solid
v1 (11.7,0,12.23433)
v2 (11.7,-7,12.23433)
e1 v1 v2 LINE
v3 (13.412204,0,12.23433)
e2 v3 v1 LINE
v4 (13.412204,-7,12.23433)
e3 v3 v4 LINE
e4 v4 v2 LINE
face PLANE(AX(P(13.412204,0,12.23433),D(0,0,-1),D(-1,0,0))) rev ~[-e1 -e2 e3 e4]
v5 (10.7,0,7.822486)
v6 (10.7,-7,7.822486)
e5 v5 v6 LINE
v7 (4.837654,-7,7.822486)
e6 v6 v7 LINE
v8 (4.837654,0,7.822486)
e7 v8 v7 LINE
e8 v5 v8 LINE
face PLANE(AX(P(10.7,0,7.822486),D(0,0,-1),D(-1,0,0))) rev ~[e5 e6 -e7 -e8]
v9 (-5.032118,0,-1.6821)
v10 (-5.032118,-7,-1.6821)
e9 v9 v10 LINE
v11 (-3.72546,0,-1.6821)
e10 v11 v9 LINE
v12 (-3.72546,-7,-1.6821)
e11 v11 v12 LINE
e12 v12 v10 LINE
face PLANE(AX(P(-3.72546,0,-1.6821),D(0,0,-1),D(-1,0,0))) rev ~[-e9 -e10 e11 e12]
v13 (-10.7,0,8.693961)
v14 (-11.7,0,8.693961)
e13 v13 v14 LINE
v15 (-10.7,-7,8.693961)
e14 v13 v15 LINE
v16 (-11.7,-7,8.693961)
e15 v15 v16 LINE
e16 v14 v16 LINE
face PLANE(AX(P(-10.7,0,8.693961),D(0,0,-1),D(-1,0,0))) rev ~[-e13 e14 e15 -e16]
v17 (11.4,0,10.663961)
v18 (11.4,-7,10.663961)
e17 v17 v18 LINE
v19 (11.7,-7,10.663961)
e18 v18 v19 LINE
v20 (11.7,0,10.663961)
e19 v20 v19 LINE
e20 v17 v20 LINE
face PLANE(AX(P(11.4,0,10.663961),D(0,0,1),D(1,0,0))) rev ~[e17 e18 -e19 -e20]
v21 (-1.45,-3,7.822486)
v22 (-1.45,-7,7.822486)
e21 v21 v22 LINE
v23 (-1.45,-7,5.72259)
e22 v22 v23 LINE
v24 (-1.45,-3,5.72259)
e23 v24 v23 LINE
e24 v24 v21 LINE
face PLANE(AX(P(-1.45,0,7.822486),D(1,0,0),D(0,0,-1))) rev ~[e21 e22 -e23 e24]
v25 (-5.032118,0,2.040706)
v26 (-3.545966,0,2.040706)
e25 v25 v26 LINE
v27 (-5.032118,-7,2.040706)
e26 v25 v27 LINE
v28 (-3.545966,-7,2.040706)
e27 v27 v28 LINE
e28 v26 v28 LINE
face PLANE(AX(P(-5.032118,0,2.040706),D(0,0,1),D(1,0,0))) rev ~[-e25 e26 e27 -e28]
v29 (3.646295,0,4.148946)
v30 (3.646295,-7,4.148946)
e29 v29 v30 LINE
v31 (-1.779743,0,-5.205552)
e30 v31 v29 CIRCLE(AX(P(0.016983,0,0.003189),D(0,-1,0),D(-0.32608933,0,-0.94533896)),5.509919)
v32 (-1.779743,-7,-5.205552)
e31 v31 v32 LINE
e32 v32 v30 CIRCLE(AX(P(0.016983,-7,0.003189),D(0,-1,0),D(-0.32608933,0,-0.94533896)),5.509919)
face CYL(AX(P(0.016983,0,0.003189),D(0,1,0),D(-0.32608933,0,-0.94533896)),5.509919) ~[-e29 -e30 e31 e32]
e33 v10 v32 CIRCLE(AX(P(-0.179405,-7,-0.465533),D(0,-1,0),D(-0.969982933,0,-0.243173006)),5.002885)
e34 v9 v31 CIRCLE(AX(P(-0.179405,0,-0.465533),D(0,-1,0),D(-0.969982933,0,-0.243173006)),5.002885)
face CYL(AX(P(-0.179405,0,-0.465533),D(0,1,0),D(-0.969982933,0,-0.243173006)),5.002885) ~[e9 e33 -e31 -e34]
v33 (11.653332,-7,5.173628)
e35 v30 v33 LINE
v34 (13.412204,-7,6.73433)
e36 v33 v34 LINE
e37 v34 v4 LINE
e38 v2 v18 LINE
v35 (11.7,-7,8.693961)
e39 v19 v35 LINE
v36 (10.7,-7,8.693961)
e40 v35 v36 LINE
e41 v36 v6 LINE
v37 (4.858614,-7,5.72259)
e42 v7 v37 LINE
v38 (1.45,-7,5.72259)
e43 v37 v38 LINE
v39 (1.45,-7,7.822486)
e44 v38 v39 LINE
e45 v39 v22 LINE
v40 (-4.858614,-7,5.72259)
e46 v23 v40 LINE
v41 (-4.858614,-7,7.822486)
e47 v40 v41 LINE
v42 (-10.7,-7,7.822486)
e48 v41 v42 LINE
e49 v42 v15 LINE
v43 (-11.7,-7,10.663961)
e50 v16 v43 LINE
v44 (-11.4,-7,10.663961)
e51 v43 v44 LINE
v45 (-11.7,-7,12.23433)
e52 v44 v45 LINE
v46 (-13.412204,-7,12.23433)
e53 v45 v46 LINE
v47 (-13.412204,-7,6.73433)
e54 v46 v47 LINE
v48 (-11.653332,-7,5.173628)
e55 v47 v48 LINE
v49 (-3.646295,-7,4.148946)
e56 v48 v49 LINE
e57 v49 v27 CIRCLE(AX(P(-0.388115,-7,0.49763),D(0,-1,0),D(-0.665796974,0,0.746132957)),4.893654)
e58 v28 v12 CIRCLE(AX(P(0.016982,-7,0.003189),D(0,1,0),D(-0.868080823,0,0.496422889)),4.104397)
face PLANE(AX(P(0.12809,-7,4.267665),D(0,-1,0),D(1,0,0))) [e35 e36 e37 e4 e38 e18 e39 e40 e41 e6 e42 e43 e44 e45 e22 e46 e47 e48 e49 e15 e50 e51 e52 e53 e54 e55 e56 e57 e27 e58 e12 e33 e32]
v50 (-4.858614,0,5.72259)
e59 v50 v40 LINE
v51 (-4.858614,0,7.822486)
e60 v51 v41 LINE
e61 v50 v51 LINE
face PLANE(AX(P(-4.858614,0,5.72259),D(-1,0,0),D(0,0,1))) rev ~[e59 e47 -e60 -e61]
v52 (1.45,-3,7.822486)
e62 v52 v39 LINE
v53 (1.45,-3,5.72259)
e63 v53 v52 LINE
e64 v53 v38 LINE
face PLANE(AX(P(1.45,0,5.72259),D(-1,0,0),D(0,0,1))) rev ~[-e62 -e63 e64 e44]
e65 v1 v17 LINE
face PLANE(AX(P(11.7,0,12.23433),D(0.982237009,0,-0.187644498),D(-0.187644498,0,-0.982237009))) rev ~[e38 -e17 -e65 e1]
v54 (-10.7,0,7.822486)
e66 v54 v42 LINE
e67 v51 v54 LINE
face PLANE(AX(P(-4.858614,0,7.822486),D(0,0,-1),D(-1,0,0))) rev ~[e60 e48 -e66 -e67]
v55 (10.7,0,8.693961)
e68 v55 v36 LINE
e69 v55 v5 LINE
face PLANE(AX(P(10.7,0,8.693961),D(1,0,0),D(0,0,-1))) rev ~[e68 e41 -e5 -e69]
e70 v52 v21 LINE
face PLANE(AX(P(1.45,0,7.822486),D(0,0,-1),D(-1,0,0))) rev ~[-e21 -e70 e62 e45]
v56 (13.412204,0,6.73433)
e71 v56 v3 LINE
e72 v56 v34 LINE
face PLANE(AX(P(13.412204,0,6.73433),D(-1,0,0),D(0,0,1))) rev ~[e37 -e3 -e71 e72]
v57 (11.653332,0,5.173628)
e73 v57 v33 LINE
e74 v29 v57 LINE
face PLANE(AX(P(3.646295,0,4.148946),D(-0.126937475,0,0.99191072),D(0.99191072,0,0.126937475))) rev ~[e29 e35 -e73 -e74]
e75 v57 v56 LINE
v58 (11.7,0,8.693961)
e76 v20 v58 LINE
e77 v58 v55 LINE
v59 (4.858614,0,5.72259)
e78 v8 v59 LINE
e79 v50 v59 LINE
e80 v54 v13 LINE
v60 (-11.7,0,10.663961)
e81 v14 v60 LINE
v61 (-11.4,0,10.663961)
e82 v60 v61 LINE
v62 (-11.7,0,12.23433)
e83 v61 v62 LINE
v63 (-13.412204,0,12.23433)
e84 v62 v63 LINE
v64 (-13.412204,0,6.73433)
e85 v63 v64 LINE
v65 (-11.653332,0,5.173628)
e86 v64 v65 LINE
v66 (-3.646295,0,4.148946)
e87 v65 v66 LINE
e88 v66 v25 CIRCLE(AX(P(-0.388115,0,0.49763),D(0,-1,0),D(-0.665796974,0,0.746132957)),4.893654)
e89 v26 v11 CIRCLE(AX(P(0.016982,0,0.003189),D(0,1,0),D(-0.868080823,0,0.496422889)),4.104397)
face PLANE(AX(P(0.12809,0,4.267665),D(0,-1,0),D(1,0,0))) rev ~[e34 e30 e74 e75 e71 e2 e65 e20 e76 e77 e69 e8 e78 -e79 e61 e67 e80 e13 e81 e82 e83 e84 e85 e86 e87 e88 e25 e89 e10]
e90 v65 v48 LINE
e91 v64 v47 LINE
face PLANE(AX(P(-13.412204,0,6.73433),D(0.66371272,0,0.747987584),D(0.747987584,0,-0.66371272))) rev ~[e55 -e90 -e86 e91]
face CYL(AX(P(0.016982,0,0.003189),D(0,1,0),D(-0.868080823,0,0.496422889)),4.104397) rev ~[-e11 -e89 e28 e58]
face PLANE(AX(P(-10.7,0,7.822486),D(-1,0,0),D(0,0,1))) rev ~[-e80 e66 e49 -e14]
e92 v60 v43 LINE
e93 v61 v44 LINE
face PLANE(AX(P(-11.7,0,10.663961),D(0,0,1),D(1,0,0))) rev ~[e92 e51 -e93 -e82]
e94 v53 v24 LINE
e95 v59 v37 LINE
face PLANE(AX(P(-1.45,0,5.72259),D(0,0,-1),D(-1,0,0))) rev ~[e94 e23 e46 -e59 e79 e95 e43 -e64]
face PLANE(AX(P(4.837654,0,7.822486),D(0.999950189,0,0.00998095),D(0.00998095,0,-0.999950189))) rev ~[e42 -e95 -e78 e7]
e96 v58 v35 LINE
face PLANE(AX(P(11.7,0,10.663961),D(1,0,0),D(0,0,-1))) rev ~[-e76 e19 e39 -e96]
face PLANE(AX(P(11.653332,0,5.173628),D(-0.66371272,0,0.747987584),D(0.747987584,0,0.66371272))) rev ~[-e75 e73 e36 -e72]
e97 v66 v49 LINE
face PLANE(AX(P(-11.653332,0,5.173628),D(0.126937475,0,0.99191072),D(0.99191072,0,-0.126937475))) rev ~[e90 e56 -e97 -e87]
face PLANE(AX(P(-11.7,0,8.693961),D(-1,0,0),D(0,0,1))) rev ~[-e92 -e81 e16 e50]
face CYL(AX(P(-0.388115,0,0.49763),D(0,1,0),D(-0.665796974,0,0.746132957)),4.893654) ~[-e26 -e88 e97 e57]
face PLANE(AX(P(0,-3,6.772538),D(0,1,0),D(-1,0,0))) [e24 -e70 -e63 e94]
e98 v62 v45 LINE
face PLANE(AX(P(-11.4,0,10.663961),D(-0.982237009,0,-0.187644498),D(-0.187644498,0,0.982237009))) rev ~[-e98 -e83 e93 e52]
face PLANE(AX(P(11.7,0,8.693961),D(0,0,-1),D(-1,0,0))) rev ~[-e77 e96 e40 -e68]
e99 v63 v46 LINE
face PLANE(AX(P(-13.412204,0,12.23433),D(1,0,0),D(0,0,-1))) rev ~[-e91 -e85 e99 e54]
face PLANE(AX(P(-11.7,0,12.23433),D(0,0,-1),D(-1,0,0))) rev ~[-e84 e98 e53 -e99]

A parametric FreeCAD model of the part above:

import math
import FreeCAD as App
import Part
import Sketcher
from FreeCAD import Vector
Q = App.Units.Quantity

doc = App.newDocument("Part")
body = doc.addObject("PartDesign::Body", "Body")

# Sketch on XZ plane
sketch1 = doc.addObject("Sketcher::SketchObject", "Sketch")
body.addObject(sketch1)
sketch1.AttachmentSupport = (doc.XZ_Plane, [""])
sketch1.MapMode = "FlatFace"
sketch1.addGeometry([
    Part.ArcOfCircle(Part.Circle(Vector(-0.18, -0.47, 0), Vector(0, 0, 1), 5), math.radians(-166), math.radians(-109)),  # 0
    Part.ArcOfCircle(Part.Circle(Vector(0.02, 0, 0), Vector(0, 0, 1), 5.51), math.radians(-109), math.radians(49)),  # 1
    Part.LineSegment(Vector(3.65, 4.15, 0), Vector(11.65, 5.17, 0)),  # 2
    Part.LineSegment(Vector(11.65, 5.17, 0), Vector(13.41, 6.73, 0)),  # 3
    Part.LineSegment(Vector(13.41, 6.73, 0), Vector(13.41, 12.23, 0)),  # 4
    Part.LineSegment(Vector(13.41, 12.23, 0), Vector(11.7, 12.23, 0)),  # 5
    Part.LineSegment(Vector(11.7, 12.23, 0), Vector(11.4, 10.66, 0)),  # 6
    Part.LineSegment(Vector(11.4, 10.66, 0), Vector(11.7, 10.66, 0)),  # 7
    Part.LineSegment(Vector(11.7, 10.66, 0), Vector(11.7, 8.69, 0)),  # 8
    Part.LineSegment(Vector(11.7, 8.69, 0), Vector(10.7, 8.69, 0)),  # 9
    Part.LineSegment(Vector(10.7, 8.69, 0), Vector(10.7, 7.82, 0)),  # 10
    Part.LineSegment(Vector(10.7, 7.82, 0), Vector(4.84, 7.82, 0)),  # 11
    Part.LineSegment(Vector(4.84, 7.82, 0), Vector(4.86, 5.72, 0)),  # 12
    Part.LineSegment(Vector(4.86, 5.72, 0), Vector(1.45, 5.72, 0)),  # 13
    Part.LineSegment(Vector(1.45, 5.72, 0), Vector(1.45, 7.82, 0)),  # 14
    Part.LineSegment(Vector(1.45, 7.82, 0), Vector(-1.45, 7.82, 0)),  # 15
    Part.LineSegment(Vector(-1.45, 7.82, 0), Vector(-1.45, 5.72, 0)),  # 16
    Part.LineSegment(Vector(-1.45, 5.72, 0), Vector(-4.86, 5.72, 0)),  # 17
    Part.LineSegment(Vector(-4.86, 5.72, 0), Vector(-4.86, 7.82, 0)),  # 18
    Part.LineSegment(Vector(-4.86, 7.82, 0), Vector(-10.7, 7.82, 0)),  # 19
    Part.LineSegment(Vector(-10.7, 7.82, 0), Vector(-10.7, 8.69, 0)),  # 20
    Part.LineSegment(Vector(-10.7, 8.69, 0), Vector(-11.7, 8.69, 0)),  # 21
    Part.LineSegment(Vector(-11.7, 8.69, 0), Vector(-11.7, 10.66, 0)),  # 22
    Part.LineSegment(Vector(-11.7, 10.66, 0), Vector(-11.4, 10.66, 0)),  # 23
    Part.LineSegment(Vector(-11.4, 10.66, 0), Vector(-11.7, 12.23, 0)),  # 24
    Part.LineSegment(Vector(-11.7, 12.23, 0), Vector(-13.41, 12.23, 0)),  # 25
    Part.LineSegment(Vector(-13.41, 12.23, 0), Vector(-13.41, 6.73, 0)),  # 26
    Part.LineSegment(Vector(-13.41, 6.73, 0), Vector(-11.65, 5.17, 0)),  # 27
    Part.LineSegment(Vector(-11.65, 5.17, 0), Vector(-3.65, 4.15, 0)),  # 28
    Part.ArcOfCircle(Part.Circle(Vector(-0.39, 0.5, 0), Vector(0, 0, 1), 4.89), math.radians(132), math.radians(162)),  # 29
    Part.LineSegment(Vector(-5.03, 2.04, 0), Vector(-3.55, 2.04, 0)),  # 30
    Part.ArcOfCircle(Part.Circle(Vector(0.02, 0, 0), Vector(0, 0, 1), 4.1), math.radians(-156), math.radians(150)),  # 31
    Part.LineSegment(Vector(-3.73, -1.68, 0), Vector(-5.03, -1.68, 0)),  # 32
], False)
sketch1.addConstraint([
    Sketcher.Constraint("Coincident", 0, 2, 1, 1),
    Sketcher.Constraint("Coincident", 1, 2, 2, 1),
    Sketcher.Constraint("Coincident", 2, 2, 3, 1),
    Sketcher.Constraint("Coincident", 3, 2, 4, 1),
    Sketcher.Constraint("Coincident", 4, 2, 5, 1),
    Sketcher.Constraint("Coincident", 5, 2, 6, 1),
    Sketcher.Constraint("Coincident", 6, 2, 7, 1),
    Sketcher.Constraint("Coincident", 7, 2, 8, 1),
    Sketcher.Constraint("Coincident", 8, 2, 9, 1),
    Sketcher.Constraint("Coincident", 9, 2, 10, 1),
    Sketcher.Constraint("Coincident", 10, 2, 11, 1),
    Sketcher.Constraint("Coincident", 11, 2, 12, 1),
    Sketcher.Constraint("Coincident", 12, 2, 13, 1),
    Sketcher.Constraint("Coincident", 13, 2, 14, 1),
    Sketcher.Constraint("Coincident", 14, 2, 15, 1),
    Sketcher.Constraint("Coincident", 15, 2, 16, 1),
    Sketcher.Constraint("Coincident", 16, 2, 17, 1),
    Sketcher.Constraint("Coincident", 17, 2, 18, 1),
    Sketcher.Constraint("Coincident", 18, 2, 19, 1),
    Sketcher.Constraint("Coincident", 19, 2, 20, 1),
    Sketcher.Constraint("Coincident", 20, 2, 21, 1),
    Sketcher.Constraint("Coincident", 21, 2, 22, 1),
    Sketcher.Constraint("Coincident", 22, 2, 23, 1),
    Sketcher.Constraint("Coincident", 23, 2, 24, 1),
    Sketcher.Constraint("Coincident", 24, 2, 25, 1),
    Sketcher.Constraint("Coincident", 25, 2, 26, 1),
    Sketcher.Constraint("Coincident", 26, 2, 27, 1),
    Sketcher.Constraint("Coincident", 27, 2, 28, 1),
    Sketcher.Constraint("Coincident", 28, 2, 29, 1),
    Sketcher.Constraint("Coincident", 29, 2, 30, 1),
    Sketcher.Constraint("Coincident", 30, 2, 31, 2),
    Sketcher.Constraint("Coincident", 31, 1, 32, 1),
    Sketcher.Constraint("Coincident", 32, 2, 0, 1),
    Sketcher.Constraint("Vertical", 4),
    Sketcher.Constraint("Horizontal", 5),
    Sketcher.Constraint("Horizontal", 7),
    Sketcher.Constraint("Vertical", 8),
    Sketcher.Constraint("Horizontal", 9),
    Sketcher.Constraint("Vertical", 10),
    Sketcher.Constraint("Horizontal", 11),
    Sketcher.Constraint("Horizontal", 13),
    Sketcher.Constraint("Vertical", 14),
    Sketcher.Constraint("Horizontal", 15),
    Sketcher.Constraint("Vertical", 16),
    Sketcher.Constraint("Horizontal", 17),
    Sketcher.Constraint("Vertical", 18),
    Sketcher.Constraint("Horizontal", 19),
    Sketcher.Constraint("Vertical", 20),
    Sketcher.Constraint("Horizontal", 21),
    Sketcher.Constraint("Vertical", 22),
    Sketcher.Constraint("Horizontal", 23),
    Sketcher.Constraint("Horizontal", 25),
    Sketcher.Constraint("Vertical", 26),
    Sketcher.Constraint("Horizontal", 30),
    Sketcher.Constraint("Horizontal", 32),
    Sketcher.Constraint("Coincident", 31, 3, 1, 3),
    Sketcher.Constraint("Symmetric", 13, 2, 16, 2, -2),
    Sketcher.Constraint("Symmetric", 10, 2, 19, 2, -2),
    Sketcher.Constraint("Symmetric", 8, 2, 21, 2, -2),
    Sketcher.Constraint("Symmetric", 6, 2, 23, 2, -2),
    Sketcher.Constraint("Symmetric", 5, 2, 24, 2, -2),
    Sketcher.Constraint("Symmetric", 3, 2, 26, 2, -2),
    Sketcher.Constraint("Symmetric", 2, 2, 27, 2, -2),
    Sketcher.Constraint("Symmetric", 1, 2, 28, 2, -2),
    Sketcher.Constraint("Horizontal", 11, 2, 14, 2),
    Sketcher.Constraint("Vertical", 5, 2, 7, 2),
    Sketcher.Constraint("Vertical", 29, 2, 32, 2),
    Sketcher.Constraint("Equal", 13, 17),
    Sketcher.Constraint("DistanceX", 9, 2, 9, 1, Q("1 mm")),
    Sketcher.Constraint("DistanceX", 7, 1, 7, 2, Q("0.3 mm")),
    Sketcher.Constraint("DistanceX", 15, 2, 15, 1, Q("2.9 mm")),
    Sketcher.Constraint("DistanceY", 4, 1, 4, 2, Q("5.5 mm")),
    Sketcher.Constraint("Distance", 12, Q("2.100001 mm")),
    Sketcher.Constraint("DistanceY", 8, 2, 8, 1, Q("1.97 mm")),
    Sketcher.Constraint("DistanceX", -1, 1, 5, 2, Q("11.7 mm")),
    Sketcher.Constraint("Radius", 1, Q("5.509919 mm")),
    Sketcher.Constraint("Radius", 0, Q("5.002885 mm")),
    Sketcher.Constraint("Radius", 29, Q("4.893654 mm")),
    Sketcher.Constraint("Radius", 31, Q("4.104397 mm")),
    Sketcher.Constraint("DistanceY", 29, 3, 2, 2, Q("4.675998 mm")),
    Sketcher.Constraint("DistanceX", 30, 1, 30, 2, Q("1.486152 mm")),
    Sketcher.Constraint("DistanceY", 31, 1, -1, 1, Q("1.6821 mm")),
    Sketcher.Constraint("DistanceX", 0, 3, 1, 2, Q("3.8257 mm")),
    Sketcher.Constraint("DistanceY", 29, 3, 3, 2, Q("6.2367 mm")),
    Sketcher.Constraint("DistanceY", 31, 3, 13, 2, Q("5.719401 mm")),
    Sketcher.Constraint("DistanceX", 17, 2, 29, 3, Q("4.470499 mm")),
    Sketcher.Constraint("DistanceX", 29, 2, 31, 3, Q("5.0491 mm")),
    Sketcher.Constraint("DistanceX", 5, 2, 5, 1, Q("1.712204 mm")),
    Sketcher.Constraint("DistanceX", 11, 2, 11, 1, Q("5.862346 mm")),
    Sketcher.Constraint("DistanceX", 13, 2, 13, 1, Q("3.408614 mm")),
    Sketcher.Constraint("DistanceX", 32, 2, 32, 1, Q("1.306658 mm")),
    Sketcher.Constraint("DistanceY", 10, 2, 10, 1, Q("0.871475 mm")),
    Sketcher.Constraint("DistanceY", 0, 2, -1, 1, Q("5.205552 mm")),
    Sketcher.Constraint("DistanceX", 1, 3, 2, 2, Q("11.636349 mm")),
])
pad1 = doc.addObject("PartDesign::Pad", "Pad")
body.addObject(pad1)
pad1.Profile = sketch1
pad1.Length = 7

# Sketch on XZ plane
sketch2 = doc.addObject("Sketcher::SketchObject", "Sketch001")
body.addObject(sketch2)
sketch2.AttachmentSupport = (doc.XZ_Plane, [""])
sketch2.MapMode = "FlatFace"
sketch2.addGeometry([
    Part.LineSegment(Vector(1.4, 7.8, 0), Vector(1.4, 5.7, 0)),
    Part.LineSegment(Vector(1.4, 5.7, 0), Vector(-1.4, 5.7, 0)),
    Part.LineSegment(Vector(-1.4, 5.7, 0), Vector(-1.4, 7.8, 0)),
    Part.LineSegment(Vector(-1.4, 7.8, 0), Vector(1.4, 7.8, 0)),
], False)
sketch2.addConstraint([
    Sketcher.Constraint("Coincident", 0, 2, 1, 1),
    Sketcher.Constraint("Coincident", 1, 2, 2, 1),
    Sketcher.Constraint("Coincident", 2, 2, 3, 1),
    Sketcher.Constraint("Coincident", 3, 2, 0, 1),
    Sketcher.Constraint("Vertical", 0),
    Sketcher.Constraint("Horizontal", 1),
    Sketcher.Constraint("Vertical", 2),
    Sketcher.Constraint("Horizontal", 3),
    Sketcher.Constraint("DistanceX", 1, 2, 1, 1, Q("2.9 mm")),
    Sketcher.Constraint("DistanceX", -1, 1, 0, 2, Q("1.45 mm")),
    Sketcher.Constraint("DistanceY", 0, 2, 0, 1, Q("2.099896 mm")),
    Sketcher.Constraint("DistanceY", -1, 1, 0, 2, Q("5.72259 mm")),
])
pocket1 = doc.addObject("PartDesign::Pocket", "Pocket")
body.addObject(pocket1)
pocket1.Profile = sketch2
pocket1.Length = 3
pocket1.Reversed = True

doc.recompute()
